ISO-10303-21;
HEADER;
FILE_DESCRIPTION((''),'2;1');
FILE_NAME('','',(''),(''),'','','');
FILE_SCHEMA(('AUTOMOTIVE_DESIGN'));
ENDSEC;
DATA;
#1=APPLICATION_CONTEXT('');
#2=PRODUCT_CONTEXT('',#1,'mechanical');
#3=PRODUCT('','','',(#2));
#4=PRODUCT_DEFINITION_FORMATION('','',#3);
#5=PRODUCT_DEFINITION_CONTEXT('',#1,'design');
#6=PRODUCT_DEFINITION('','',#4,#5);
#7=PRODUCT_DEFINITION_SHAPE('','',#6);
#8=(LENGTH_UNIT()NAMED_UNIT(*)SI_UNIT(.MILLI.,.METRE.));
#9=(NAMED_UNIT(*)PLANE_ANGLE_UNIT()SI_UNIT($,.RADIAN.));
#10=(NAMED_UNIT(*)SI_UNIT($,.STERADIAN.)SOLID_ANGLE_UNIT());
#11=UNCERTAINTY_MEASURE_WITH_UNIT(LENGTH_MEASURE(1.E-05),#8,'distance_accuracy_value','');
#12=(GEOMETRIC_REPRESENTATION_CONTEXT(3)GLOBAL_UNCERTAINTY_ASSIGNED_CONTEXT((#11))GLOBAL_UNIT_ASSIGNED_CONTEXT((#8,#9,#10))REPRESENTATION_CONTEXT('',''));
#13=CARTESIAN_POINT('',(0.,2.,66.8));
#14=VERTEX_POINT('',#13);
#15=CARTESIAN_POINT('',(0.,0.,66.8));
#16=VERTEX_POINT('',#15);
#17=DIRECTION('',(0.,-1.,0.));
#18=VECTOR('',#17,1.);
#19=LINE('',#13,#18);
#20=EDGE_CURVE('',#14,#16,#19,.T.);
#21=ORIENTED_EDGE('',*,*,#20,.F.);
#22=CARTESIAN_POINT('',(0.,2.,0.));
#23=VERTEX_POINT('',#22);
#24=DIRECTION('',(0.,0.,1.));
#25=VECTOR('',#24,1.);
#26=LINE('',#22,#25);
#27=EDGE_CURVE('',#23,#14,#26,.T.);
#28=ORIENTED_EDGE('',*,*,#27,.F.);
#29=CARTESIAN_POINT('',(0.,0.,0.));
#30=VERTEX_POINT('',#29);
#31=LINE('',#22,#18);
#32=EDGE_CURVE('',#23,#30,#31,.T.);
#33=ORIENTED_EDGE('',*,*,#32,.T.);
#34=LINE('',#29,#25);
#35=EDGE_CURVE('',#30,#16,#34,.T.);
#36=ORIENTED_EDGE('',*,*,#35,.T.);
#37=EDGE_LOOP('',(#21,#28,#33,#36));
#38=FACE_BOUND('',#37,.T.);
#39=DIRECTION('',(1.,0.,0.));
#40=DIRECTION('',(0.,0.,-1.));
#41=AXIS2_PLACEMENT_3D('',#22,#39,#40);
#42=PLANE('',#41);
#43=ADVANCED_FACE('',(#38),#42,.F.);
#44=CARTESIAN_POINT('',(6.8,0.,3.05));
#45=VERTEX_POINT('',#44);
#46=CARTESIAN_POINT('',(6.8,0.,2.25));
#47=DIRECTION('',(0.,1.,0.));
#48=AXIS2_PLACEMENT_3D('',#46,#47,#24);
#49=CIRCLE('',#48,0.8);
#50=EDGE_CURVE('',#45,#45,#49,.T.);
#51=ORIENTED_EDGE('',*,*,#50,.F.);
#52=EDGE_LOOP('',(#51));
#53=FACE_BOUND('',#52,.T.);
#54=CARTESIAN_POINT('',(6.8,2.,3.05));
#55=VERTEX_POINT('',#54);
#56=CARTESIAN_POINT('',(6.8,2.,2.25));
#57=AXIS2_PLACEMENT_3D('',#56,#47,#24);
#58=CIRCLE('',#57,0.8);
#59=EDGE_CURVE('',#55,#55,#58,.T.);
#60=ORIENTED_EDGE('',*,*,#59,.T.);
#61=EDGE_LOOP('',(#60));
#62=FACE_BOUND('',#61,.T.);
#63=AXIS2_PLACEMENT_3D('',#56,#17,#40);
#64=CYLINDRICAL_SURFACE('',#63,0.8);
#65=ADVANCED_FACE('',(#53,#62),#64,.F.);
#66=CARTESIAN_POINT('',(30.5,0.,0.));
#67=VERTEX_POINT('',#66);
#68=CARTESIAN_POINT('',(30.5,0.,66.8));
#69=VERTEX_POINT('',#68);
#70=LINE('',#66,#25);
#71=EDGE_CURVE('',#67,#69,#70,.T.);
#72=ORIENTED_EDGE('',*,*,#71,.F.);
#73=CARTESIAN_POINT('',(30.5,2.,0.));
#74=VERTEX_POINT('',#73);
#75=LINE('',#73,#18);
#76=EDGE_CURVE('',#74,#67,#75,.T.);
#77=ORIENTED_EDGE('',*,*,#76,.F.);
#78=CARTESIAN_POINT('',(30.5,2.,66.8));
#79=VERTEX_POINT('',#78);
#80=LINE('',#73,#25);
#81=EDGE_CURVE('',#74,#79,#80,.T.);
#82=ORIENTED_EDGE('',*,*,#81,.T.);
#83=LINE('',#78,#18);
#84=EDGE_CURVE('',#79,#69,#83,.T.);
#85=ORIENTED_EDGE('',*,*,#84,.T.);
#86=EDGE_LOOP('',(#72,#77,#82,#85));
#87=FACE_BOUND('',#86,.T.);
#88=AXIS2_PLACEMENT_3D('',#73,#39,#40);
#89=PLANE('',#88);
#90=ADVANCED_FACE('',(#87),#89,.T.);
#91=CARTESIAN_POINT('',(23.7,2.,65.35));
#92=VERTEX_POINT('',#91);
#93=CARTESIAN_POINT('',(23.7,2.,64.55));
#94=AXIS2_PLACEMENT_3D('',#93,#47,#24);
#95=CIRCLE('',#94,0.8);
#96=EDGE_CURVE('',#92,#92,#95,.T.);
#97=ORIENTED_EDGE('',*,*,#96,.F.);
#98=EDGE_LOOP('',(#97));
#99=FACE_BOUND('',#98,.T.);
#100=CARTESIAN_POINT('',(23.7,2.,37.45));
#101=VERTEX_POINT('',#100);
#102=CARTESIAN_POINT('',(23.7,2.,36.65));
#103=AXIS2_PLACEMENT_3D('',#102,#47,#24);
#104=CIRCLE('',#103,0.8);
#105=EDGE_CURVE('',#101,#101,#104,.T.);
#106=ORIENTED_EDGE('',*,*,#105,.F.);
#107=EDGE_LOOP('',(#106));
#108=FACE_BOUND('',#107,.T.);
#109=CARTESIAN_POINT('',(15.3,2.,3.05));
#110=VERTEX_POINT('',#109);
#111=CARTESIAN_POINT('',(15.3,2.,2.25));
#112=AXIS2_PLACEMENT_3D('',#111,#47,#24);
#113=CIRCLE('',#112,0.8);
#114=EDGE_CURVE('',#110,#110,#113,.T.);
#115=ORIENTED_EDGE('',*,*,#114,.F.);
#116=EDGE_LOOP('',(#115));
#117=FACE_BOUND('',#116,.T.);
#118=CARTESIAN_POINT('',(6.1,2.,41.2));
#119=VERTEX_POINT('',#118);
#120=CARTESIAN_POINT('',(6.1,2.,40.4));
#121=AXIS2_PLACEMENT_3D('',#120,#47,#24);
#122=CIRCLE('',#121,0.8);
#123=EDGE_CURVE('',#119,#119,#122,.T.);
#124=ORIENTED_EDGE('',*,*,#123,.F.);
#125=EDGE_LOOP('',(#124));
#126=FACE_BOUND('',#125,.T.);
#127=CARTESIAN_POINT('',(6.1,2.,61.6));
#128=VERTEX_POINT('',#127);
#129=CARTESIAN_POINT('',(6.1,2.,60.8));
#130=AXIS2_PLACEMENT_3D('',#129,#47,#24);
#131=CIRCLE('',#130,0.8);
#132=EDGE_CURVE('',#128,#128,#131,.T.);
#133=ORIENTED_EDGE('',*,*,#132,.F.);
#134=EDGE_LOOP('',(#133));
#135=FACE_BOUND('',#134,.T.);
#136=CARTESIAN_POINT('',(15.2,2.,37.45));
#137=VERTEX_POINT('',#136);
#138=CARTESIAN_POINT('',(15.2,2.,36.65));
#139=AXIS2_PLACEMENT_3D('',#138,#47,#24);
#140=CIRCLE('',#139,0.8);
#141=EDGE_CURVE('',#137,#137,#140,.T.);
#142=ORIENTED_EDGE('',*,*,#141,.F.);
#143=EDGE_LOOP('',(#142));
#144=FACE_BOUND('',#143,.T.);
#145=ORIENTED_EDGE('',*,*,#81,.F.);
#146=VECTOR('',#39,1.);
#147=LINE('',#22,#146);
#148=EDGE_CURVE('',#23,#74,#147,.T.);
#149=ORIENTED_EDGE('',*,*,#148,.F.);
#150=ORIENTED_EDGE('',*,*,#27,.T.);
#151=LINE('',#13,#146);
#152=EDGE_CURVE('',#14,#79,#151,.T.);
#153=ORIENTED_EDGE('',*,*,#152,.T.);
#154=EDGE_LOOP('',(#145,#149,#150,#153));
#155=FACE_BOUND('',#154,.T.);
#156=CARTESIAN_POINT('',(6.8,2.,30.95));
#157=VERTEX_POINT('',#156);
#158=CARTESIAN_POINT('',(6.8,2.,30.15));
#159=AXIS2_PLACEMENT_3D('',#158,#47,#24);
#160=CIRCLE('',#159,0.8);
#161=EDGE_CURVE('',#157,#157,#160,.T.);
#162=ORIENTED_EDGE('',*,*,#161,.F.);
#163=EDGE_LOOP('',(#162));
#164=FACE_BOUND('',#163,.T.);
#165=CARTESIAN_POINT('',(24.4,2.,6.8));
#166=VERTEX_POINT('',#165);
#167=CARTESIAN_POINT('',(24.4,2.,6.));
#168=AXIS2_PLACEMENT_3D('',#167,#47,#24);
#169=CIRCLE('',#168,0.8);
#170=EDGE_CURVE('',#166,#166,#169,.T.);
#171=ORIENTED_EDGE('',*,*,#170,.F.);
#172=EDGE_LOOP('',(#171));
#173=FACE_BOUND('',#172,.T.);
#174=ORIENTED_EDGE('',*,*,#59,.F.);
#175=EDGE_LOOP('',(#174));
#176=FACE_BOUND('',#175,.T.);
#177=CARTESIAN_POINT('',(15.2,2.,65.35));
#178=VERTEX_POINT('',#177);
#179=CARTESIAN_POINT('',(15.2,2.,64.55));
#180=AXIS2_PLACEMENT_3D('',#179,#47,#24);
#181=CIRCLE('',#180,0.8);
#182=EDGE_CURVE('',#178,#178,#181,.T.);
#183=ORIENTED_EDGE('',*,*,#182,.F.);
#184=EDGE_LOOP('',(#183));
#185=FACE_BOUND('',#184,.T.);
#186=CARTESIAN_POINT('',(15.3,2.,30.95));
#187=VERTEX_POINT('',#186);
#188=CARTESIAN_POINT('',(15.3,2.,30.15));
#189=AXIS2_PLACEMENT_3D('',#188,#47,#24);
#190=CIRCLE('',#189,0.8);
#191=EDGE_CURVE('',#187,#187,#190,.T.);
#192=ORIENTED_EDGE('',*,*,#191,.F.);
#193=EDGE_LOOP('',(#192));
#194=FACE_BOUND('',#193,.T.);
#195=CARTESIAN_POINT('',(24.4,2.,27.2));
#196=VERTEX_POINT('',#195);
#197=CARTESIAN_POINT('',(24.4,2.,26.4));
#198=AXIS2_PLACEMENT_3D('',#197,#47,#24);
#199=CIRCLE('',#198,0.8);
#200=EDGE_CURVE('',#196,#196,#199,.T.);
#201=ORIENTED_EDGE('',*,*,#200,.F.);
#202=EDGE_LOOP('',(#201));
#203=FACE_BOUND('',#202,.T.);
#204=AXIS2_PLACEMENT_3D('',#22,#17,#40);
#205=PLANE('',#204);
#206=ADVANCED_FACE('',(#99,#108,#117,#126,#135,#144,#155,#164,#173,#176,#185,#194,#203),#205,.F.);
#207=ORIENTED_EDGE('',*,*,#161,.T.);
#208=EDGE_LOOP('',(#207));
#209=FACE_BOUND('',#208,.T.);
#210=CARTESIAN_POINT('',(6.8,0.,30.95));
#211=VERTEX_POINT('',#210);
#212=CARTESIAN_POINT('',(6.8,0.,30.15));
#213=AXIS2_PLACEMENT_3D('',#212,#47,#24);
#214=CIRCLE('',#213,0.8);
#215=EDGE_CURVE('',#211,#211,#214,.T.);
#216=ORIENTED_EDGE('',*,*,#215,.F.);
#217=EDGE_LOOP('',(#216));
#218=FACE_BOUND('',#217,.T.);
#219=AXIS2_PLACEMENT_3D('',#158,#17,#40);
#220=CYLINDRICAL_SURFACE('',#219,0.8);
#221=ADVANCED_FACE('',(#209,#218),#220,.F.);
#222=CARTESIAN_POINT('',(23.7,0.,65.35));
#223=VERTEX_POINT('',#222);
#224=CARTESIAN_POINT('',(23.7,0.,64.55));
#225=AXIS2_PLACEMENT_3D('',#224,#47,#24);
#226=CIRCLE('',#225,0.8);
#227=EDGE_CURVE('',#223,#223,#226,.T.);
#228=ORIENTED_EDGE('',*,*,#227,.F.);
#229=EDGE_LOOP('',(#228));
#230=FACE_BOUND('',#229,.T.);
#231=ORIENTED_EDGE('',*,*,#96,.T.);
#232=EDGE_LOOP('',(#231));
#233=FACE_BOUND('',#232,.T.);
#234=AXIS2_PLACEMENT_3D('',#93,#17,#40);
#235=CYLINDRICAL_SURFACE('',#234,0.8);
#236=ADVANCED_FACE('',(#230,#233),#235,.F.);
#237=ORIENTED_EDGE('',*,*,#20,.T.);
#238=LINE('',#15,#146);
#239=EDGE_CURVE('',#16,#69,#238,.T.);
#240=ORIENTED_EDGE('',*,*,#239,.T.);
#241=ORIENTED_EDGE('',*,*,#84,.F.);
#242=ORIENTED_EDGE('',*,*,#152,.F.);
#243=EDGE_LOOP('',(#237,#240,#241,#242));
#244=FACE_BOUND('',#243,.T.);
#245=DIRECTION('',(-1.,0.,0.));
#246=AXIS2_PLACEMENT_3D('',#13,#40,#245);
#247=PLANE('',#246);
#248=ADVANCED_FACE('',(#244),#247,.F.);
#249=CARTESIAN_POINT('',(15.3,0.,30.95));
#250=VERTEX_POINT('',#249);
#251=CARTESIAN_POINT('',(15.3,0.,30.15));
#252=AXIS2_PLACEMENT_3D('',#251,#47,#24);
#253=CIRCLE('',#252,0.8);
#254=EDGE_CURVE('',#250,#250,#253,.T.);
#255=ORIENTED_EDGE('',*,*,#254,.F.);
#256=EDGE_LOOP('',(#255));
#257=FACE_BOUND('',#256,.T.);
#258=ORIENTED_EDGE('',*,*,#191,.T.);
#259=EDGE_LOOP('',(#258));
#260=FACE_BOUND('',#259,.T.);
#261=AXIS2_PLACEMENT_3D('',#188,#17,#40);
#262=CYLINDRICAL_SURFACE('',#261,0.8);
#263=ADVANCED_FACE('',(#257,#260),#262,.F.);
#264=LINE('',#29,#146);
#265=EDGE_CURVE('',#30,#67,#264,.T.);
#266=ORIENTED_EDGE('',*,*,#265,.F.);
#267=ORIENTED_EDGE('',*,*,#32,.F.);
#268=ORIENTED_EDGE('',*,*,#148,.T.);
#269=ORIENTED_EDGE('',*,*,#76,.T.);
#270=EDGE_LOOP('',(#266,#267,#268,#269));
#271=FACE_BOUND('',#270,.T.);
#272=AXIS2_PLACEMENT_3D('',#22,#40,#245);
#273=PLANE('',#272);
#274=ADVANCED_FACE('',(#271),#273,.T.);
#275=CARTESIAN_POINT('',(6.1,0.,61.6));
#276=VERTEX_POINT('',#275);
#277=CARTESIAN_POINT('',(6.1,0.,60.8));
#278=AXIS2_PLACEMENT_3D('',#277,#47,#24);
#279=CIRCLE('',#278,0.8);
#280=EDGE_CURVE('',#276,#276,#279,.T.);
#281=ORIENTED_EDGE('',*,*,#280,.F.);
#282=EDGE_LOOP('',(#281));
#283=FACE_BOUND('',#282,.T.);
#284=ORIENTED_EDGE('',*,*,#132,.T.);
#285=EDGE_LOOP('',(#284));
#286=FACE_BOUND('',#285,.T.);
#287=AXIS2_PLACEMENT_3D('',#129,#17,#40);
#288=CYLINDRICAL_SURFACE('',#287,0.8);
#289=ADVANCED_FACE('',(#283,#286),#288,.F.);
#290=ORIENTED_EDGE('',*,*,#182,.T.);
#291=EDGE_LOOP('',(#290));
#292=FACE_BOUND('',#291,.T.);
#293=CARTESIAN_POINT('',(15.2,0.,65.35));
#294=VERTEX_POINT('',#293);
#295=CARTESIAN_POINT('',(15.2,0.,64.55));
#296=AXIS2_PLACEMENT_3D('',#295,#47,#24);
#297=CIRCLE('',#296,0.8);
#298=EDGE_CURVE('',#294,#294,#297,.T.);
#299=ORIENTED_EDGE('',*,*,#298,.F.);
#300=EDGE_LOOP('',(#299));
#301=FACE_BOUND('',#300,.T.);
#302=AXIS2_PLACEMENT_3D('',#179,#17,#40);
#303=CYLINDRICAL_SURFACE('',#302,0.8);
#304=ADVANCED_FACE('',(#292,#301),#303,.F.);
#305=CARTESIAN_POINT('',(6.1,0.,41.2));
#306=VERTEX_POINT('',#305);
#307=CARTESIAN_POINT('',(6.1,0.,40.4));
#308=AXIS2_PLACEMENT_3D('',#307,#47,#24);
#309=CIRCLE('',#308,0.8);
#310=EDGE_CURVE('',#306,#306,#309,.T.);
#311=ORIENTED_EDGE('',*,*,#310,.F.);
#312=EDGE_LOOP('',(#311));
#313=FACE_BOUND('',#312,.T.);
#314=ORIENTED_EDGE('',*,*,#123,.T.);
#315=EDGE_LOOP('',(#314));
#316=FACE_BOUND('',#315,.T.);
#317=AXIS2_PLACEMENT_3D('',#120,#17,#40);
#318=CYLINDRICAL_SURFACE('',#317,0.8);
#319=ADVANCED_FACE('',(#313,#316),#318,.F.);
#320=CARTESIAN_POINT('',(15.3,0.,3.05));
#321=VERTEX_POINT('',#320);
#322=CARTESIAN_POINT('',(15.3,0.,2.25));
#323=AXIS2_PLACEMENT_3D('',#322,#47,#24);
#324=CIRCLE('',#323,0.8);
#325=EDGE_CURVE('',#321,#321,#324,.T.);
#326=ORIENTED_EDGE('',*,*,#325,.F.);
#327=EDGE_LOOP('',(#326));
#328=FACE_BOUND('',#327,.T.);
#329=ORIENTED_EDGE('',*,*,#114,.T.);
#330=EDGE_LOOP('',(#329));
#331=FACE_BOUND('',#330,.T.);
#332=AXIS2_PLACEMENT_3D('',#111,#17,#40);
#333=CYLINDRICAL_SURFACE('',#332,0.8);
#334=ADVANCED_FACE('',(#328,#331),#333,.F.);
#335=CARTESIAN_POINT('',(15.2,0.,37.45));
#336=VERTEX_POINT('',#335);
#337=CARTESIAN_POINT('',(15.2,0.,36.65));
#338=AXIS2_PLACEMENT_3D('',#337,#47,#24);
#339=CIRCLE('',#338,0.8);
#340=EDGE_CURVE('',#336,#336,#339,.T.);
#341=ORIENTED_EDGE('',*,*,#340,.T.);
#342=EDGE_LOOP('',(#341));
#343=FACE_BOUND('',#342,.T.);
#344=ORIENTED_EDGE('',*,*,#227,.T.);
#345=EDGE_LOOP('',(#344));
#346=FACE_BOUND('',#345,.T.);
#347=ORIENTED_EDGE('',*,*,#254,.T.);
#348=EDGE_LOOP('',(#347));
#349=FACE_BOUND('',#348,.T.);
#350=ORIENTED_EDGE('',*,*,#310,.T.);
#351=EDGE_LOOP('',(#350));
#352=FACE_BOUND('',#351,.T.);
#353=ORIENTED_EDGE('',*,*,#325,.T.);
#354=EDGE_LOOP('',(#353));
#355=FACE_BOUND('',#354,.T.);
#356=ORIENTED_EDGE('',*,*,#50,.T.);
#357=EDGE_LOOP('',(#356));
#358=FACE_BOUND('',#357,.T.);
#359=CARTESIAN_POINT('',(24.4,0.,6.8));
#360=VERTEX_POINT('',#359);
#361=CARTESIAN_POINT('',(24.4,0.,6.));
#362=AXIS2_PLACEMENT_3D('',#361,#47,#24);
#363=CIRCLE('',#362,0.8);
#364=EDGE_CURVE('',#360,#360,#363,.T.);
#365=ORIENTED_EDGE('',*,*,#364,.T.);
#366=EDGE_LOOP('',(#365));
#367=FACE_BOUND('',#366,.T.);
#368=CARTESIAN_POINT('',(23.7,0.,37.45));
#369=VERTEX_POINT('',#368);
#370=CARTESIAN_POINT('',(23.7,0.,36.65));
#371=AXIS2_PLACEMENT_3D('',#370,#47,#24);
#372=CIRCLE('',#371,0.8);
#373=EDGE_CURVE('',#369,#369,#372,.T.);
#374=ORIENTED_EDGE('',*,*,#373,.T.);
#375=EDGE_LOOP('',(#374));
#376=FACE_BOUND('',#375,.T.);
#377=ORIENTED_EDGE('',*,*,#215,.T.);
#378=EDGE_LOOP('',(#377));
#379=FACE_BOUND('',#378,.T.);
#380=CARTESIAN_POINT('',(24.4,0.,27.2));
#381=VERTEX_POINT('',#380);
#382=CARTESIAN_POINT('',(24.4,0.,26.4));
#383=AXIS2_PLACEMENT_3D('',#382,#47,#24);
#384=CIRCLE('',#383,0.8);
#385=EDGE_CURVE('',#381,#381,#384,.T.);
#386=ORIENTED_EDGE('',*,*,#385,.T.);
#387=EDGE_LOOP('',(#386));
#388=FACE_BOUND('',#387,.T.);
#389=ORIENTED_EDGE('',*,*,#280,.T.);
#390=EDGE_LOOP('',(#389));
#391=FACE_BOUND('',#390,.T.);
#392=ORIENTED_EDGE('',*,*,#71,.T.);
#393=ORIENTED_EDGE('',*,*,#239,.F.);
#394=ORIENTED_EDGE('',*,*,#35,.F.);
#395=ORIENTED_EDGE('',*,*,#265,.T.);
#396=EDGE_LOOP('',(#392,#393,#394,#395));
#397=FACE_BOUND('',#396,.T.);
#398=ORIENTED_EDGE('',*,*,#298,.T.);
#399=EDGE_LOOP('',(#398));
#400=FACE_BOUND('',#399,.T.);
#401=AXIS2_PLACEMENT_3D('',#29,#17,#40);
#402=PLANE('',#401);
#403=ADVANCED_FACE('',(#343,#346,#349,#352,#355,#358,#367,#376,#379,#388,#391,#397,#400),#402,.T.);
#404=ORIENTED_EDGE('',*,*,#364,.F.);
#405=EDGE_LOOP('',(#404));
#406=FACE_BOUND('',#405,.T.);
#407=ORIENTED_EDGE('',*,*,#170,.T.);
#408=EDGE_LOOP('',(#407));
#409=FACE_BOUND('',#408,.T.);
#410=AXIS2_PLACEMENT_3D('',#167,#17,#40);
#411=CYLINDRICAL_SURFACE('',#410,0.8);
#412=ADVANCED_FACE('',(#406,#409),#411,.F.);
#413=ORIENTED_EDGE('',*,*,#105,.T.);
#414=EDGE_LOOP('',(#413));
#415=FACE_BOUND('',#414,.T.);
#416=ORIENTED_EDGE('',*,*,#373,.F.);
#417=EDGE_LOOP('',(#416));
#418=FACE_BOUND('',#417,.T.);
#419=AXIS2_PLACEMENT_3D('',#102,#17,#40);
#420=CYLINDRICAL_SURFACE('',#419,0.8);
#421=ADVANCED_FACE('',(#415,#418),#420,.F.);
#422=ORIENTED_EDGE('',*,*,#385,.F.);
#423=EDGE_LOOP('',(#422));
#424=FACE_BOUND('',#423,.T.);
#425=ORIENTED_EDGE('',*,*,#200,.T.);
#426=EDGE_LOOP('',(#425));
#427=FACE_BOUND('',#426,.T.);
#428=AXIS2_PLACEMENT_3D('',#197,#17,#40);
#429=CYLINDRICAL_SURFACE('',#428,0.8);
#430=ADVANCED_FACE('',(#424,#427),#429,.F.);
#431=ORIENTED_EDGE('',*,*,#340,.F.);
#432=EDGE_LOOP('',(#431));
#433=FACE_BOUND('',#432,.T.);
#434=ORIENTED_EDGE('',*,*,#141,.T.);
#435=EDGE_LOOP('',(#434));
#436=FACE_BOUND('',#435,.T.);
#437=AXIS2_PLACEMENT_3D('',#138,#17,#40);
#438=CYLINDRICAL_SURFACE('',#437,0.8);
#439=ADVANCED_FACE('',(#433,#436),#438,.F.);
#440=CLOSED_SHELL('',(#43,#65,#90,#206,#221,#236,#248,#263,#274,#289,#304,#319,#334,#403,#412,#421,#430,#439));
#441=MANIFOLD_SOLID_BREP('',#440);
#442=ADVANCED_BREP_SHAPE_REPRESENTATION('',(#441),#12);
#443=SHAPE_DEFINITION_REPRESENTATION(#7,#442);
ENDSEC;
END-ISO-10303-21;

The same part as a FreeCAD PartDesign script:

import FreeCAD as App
import Part
import Sketcher

V = App.Vector

doc = App.newDocument("Part")
body = doc.addObject("PartDesign::Body", "Body")

# Sketch on XZ plane
sketch1 = doc.addObject("Sketcher::SketchObject", "Sketch")
body.addObject(sketch1)
sketch1.AttachmentSupport = (doc.XZ_Plane, [""])
sketch1.MapMode = "FlatFace"
sketch1.addGeometry([
    Part.LineSegment(V(0, 0, 0), V(0, 66.8, 0)),  # 0
    Part.LineSegment(V(0, 66.8, 0), V(30.5, 66.8, 0)),  # 1
    Part.LineSegment(V(30.5, 66.8, 0), V(30.5, 0, 0)),  # 2
    Part.LineSegment(V(30.5, 0, 0), V(0, 0, 0)),  # 3
    Part.Circle(V(6.1, 60.8, 0), V(0, 0, 1), 0.8),  # 4
    Part.Circle(V(15.2, 64.5, 0), V(0, 0, 1), 0.8),  # 5
    Part.Circle(V(6.1, 40.4, 0), V(0, 0, 1), 0.8),  # 6
    Part.Circle(V(15.2, 36.6, 0), V(0, 0, 1), 0.8),  # 7
    Part.Circle(V(23.7, 64.5, 0), V(0, 0, 1), 0.8),  # 8
    Part.Circle(V(23.7, 36.6, 0), V(0, 0, 1), 0.8),  # 9
    Part.Circle(V(6.8, 30.1, 0), V(0, 0, 1), 0.8),  # 10
    Part.Circle(V(6.8, 2.2, 0), V(0, 0, 1), 0.8),  # 11
    Part.Circle(V(15.3, 30.1, 0), V(0, 0, 1), 0.8),  # 12
    Part.Circle(V(24.4, 26.4, 0), V(0, 0, 1), 0.8),  # 13
    Part.Circle(V(15.3, 2.2, 0), V(0, 0, 1), 0.8),  # 14
    Part.Circle(V(24.4, 6, 0), V(0, 0, 1), 0.8),  # 15
], False)
sketch1.addConstraint([
    Sketcher.Constraint("Coincident", 0, 2, 1, 1),
    Sketcher.Constraint("Coincident", 1, 2, 2, 1),
    Sketcher.Constraint("Coincident", 2, 2, 3, 1),
    Sketcher.Constraint("Coincident", 3, 2, 0, 1),
    Sketcher.Constraint("Vertical", 0),
    Sketcher.Constraint("Horizontal", 1),
    Sketcher.Constraint("Vertical", 2),
    Sketcher.Constraint("Horizontal", 3),
    Sketcher.Constraint("Coincident", 3, 2, -1, 1),
    Sketcher.Constraint("Equal", 4, 5),
    Sketcher.Constraint("Equal", 5, 6),
    Sketcher.Constraint("Equal", 6, 7),
    Sketcher.Constraint("Equal", 7, 8),
    Sketcher.Constraint("Equal", 8, 9),
    Sketcher.Constraint("Equal", 9, 10),
    Sketcher.Constraint("Equal", 10, 11),
    Sketcher.Constraint("Equal", 11, 12),
    Sketcher.Constraint("Equal", 12, 13),
    Sketcher.Constraint("Equal", 13, 14),
    Sketcher.Constraint("Equal", 14, 15),
    Sketcher.Constraint("Horizontal", 5, 3, 8, 3),
    Sketcher.Constraint("Horizontal", 7, 3, 9, 3),
    Sketcher.Constraint("Horizontal", 10, 3, 12, 3),
    Sketcher.Constraint("Horizontal", 11, 3, 14, 3),
    Sketcher.Constraint("Vertical", 4, 3, 6, 3),
    Sketcher.Constraint("Vertical", 5, 3, 7, 3),
    Sketcher.Constraint("Vertical", 8, 3, 9, 3),
    Sketcher.Constraint("Vertical", 10, 3, 11, 3),
    Sketcher.Constraint("Vertical", 12, 3, 14, 3),
    Sketcher.Constraint("Vertical", 13, 3, 15, 3),
    Sketcher.Constraint("Diameter", 4, 1.6),
    Sketcher.Constraint("DistanceX", 1, 1, 1, 2, 30.5),
    Sketcher.Constraint("DistanceY", 0, 1, 0, 2, 66.8),
    Sketcher.Constraint("DistanceY", -1, 1, 15, 3, 6.0),
    Sketcher.Constraint("DistanceY", 13, 3, 6, 3, 14.0),
    Sketcher.Constraint("DistanceY", 4, 3, 0, 2, 6.0),
    Sketcher.Constraint("DistanceX", -1, 1, 4, 3, 6.1),
    Sketcher.Constraint("DistanceX", -1, 1, 5, 3, 15.2),
    Sketcher.Constraint("DistanceY", -1, 1, 6, 3, 40.4),
    Sketcher.Constraint("DistanceX", -1, 1, 8, 3, 23.7),
    Sketcher.Constraint("DistanceX", -1, 1, 10, 3, 6.8),
    Sketcher.Constraint("DistanceX", -1, 1, 12, 3, 15.3),
    Sketcher.Constraint("DistanceX", -1, 1, 13, 3, 24.4),
    Sketcher.Constraint("DistanceY", 7, 3, 5, 3, 27.9),
    Sketcher.Constraint("DistanceY", 10, 3, 7, 3, 6.5),
    Sketcher.Constraint("DistanceY", 11, 3, 10, 3, 27.9),
    Sketcher.Constraint("DistanceY", -1, 1, 5, 3, 64.55),
])
pad1 = doc.addObject("PartDesign::Pad", "Pad")
body.addObject(pad1)
pad1.Profile = sketch1
pad1.Length = 2
pad1.Reversed = True

doc.recompute()
